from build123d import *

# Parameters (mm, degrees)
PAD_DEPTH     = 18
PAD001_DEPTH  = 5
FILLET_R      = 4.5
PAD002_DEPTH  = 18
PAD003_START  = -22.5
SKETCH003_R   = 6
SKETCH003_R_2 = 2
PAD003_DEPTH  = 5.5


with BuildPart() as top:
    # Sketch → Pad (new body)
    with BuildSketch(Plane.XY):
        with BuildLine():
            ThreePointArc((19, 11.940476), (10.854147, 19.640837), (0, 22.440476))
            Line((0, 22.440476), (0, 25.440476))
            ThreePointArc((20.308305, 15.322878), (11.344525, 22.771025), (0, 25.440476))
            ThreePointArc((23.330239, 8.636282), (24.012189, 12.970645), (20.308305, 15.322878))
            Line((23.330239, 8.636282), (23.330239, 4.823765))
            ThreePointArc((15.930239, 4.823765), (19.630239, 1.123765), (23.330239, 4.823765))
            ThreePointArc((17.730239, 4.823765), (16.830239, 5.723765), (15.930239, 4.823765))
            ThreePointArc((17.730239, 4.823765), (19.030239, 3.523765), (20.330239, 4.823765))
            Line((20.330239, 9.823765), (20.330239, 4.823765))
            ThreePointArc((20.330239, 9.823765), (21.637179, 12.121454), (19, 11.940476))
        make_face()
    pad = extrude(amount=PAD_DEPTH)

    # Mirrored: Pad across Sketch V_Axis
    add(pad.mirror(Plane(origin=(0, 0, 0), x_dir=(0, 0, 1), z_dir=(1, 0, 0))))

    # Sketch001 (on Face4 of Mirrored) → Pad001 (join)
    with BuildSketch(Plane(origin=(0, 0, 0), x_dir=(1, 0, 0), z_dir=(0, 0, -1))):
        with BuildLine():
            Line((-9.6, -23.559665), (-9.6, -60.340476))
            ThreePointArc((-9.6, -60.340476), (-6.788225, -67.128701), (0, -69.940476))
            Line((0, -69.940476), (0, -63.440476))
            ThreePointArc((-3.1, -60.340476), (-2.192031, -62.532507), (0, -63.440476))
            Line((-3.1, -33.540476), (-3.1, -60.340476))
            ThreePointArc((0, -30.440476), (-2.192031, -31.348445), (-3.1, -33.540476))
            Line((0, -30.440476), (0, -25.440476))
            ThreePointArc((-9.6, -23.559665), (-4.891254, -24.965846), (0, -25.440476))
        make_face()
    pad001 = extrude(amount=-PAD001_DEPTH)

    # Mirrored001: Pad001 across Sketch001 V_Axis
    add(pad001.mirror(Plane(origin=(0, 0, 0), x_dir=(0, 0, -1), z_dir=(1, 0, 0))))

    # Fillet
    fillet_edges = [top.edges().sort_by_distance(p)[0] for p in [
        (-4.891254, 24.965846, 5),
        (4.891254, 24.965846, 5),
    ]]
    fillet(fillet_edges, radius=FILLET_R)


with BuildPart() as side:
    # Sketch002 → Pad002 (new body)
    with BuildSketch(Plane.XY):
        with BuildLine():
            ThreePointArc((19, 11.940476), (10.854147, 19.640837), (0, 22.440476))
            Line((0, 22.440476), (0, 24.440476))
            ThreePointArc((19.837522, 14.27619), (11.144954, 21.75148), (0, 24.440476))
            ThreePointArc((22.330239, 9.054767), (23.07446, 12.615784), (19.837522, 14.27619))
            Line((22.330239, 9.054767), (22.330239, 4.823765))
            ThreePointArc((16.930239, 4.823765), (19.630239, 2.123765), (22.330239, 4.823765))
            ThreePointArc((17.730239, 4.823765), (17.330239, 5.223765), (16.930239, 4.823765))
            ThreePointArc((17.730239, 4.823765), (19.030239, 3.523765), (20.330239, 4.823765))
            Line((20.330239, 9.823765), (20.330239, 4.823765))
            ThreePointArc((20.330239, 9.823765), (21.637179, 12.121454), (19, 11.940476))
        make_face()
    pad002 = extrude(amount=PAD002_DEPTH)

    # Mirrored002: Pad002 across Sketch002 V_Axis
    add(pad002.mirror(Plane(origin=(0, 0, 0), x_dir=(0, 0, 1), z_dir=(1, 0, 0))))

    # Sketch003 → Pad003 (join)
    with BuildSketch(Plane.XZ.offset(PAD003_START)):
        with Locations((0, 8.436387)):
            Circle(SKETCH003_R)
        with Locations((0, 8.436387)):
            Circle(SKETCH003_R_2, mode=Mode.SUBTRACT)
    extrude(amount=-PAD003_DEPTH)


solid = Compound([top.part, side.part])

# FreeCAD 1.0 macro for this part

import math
import FreeCAD as App
import Part
import Sketcher
from FreeCAD import Vector


def edges_at(feature, points):
    """Names of the edges that pass closest to the given points."""
    edges = feature.Shape.Edges
    near = lambda p: min(range(len(edges)), key=lambda i: edges[i].distToShape(Part.Vertex(*p))[0])
    return sorted({f"Edge{near(p) + 1}" for p in points})

doc = App.newDocument("Part")
body = doc.addObject("PartDesign::Body", "Body")

sketch1 = doc.addObject("Sketcher::SketchObject", "Sketch")
body.addObject(sketch1)
sketch1.AttachmentSupport = (doc.XY_Plane, [""])
sketch1.MapMode = "FlatFace"
sketch1.addGeometry(Part.ArcOfCircle(Part.Circle(Vector(0, 0, 0), Vector(0, 0, 1), 22.4), math.radians(32), math.radians(90)), False)
sketch1.addGeometry(Part.ArcOfCircle(Part.Circle(Vector(20.4, 11.3, 0), Vector(0, 0, 1), 1.5), math.radians(-91), math.radians(156)), False)
sketch1.addGeometry(Part.LineSegment(Vector(20.3, 9.8, 0), Vector(20.3, 4.8, 0)), False)
sketch1.addGeometry(Part.ArcOfCircle(Part.Circle(Vector(19, 4.8, 0), Vector(0, 0, 1), 1.3), math.radians(180), math.radians(360)), False)
sketch1.addGeometry(Part.ArcOfCircle(Part.Circle(Vector(16.8, 4.8, 0), Vector(0, 0, 1), 0.9), math.radians(0), math.radians(180)), False)
sketch1.addGeometry(Part.ArcOfCircle(Part.Circle(Vector(19.6, 4.8, 0), Vector(0, 0, 1), 3.7), math.radians(180), math.radians(360)), False)
sketch1.addGeometry(Part.LineSegment(Vector(23.3, 4.8, 0), Vector(23.3, 8.6, 0)), False)
sketch1.addGeometry(Part.ArcOfCircle(Part.Circle(Vector(20.4, 11.3, 0), Vector(0, 0, 1), 4), math.radians(-42), math.radians(91)), False)
sketch1.addGeometry(Part.ArcOfCircle(Part.Circle(Vector(0, 0, 0), Vector(0, 0, 1), 25.4), math.radians(37), math.radians(90)), False)
sketch1.addGeometry(Part.LineSegment(Vector(0, 25.4, 0), Vector(0, 22.4, 0)), False)
sketch1.addConstraint(Sketcher.Constraint("Coincident", 0, 1, 1, 2))
sketch1.addConstraint(Sketcher.Constraint("Coincident", 1, 1, 2, 1))
sketch1.addConstraint(Sketcher.Constraint("Tangent", 2, 2, 3, 2))
sketch1.addConstraint(Sketcher.Constraint("Tangent", 3, 1, 4, 1))
sketch1.addConstraint(Sketcher.Constraint("Tangent", 4, 2, 5, 1))
sketch1.addConstraint(Sketcher.Constraint("Tangent", 5, 2, 6, 1))
sketch1.addConstraint(Sketcher.Constraint("Coincident", 6, 2, 7, 1))
sketch1.addConstraint(Sketcher.Constraint("Coincident", 7, 2, 8, 1))
sketch1.addConstraint(Sketcher.Constraint("Coincident", 8, 2, 9, 1))
sketch1.addConstraint(Sketcher.Constraint("Coincident", 9, 2, 0, 2))
sketch1.addConstraint(Sketcher.Constraint("Vertical", 2))
sketch1.addConstraint(Sketcher.Constraint("Vertical", 6))
sketch1.addConstraint(Sketcher.Constraint("Vertical", 9))
sketch1.addConstraint(Sketcher.Constraint("Coincident", 0, 3, -1, 1))
sketch1.addConstraint(Sketcher.Constraint("Coincident", 8, 3, -1, 1))
sketch1.addConstraint(Sketcher.Constraint("Coincident", 7, 3, 1, 3))
sketch1.addConstraint(Sketcher.Constraint("PointOnObject", 8, 2, -2))
sketch1.addConstraint(Sketcher.Constraint("Horizontal", 3, 3, 4, 3))
sketch1.addConstraint(Sketcher.Constraint("Horizontal", 4, 3, 5, 3))
sketch1.addConstraint(Sketcher.Constraint("Radius", 7, 4.000001))
sketch1.addConstraint(Sketcher.Constraint("Radius", 1, 1.5))
sketch1.addConstraint(Sketcher.Constraint("Radius", 3, 1.3))
sketch1.addConstraint(Sketcher.Constraint("Radius", 4, 0.9))
sketch1.addConstraint(Sketcher.Constraint("Radius", 5, 3.7))
sketch1.addConstraint(Sketcher.Constraint("DistanceY", 2, 2, 2, 1, 5.0))
sketch1.addConstraint(Sketcher.Constraint("DistanceY", 9, 2, 9, 1, 3.0))
sketch1.addConstraint(Sketcher.Constraint("DistanceX", -1, 1, 0, 1, 19.0))
sketch1.addConstraint(Sketcher.Constraint("DistanceY", 0, 1, 8, 2, 13.5))
sketch1.addConstraint(Sketcher.Constraint("DistanceY", 0, 1, 7, 2, 3.382402))
sketch1.addConstraint(Sketcher.Constraint("DistanceY", 6, 1, 6, 2, 3.812517))
pad1 = doc.addObject("PartDesign::Pad", "Pad")
body.addObject(pad1)
pad1.Profile = sketch1
pad1.Length = 18
doc.recompute()

mirrored = doc.addObject("PartDesign::Mirrored", "Mirrored")
body.addObject(mirrored)
mirrored.Originals = [pad1]
mirrored.MirrorPlane = (doc.YZ_Plane, [""])
body.Tip = mirrored

sketch2 = doc.addObject("Sketcher::SketchObject", "Sketch001")
body.addObject(sketch2)
sketch2.AttachmentSupport = (doc.XY_Plane, [""])
sketch2.MapMode = "FlatFace"
sketch2.addGeometry(Part.LineSegment(Vector(-9.6, 23.6, 0), Vector(-9.6, 60.3, 0)), False)
sketch2.addGeometry(Part.ArcOfCircle(Part.Circle(Vector(0, 60.3, 0), Vector(0, 0, 1), 9.6), math.radians(90), math.radians(180)), False)
sketch2.addGeometry(Part.LineSegment(Vector(0, 69.9, 0), Vector(0, 63.4, 0)), False)
sketch2.addGeometry(Part.ArcOfCircle(Part.Circle(Vector(0, 60.3, 0), Vector(0, 0, 1), 3.1), math.radians(90), math.radians(180)), False)
sketch2.addGeometry(Part.LineSegment(Vector(-3.1, 60.3, 0), Vector(-3.1, 33.5, 0)), False)
sketch2.addGeometry(Part.ArcOfCircle(Part.Circle(Vector(0, 33.5, 0), Vector(0, 0, 1), 3.1), math.radians(-180), math.radians(-90)), False)
sketch2.addGeometry(Part.LineSegment(Vector(0, 30.4, 0), Vector(0, 25.4, 0)), False)
sketch2.addGeometry(Part.ArcOfCircle(Part.Circle(Vector(0, 0, 0), Vector(0, 0, 1), 25.4), math.radians(90), math.radians(112)), False)
sketch2.addConstraint(Sketcher.Constraint("Tangent", 0, 2, 1, 2))
sketch2.addConstraint(Sketcher.Constraint("Coincident", 1, 1, 2, 1))
sketch2.addConstraint(Sketcher.Constraint("Coincident", 2, 2, 3, 1))
sketch2.addConstraint(Sketcher.Constraint("Tangent", 3, 2, 4, 1))
sketch2.addConstraint(Sketcher.Constraint("Tangent", 4, 2, 5, 1))
sketch2.addConstraint(Sketcher.Constraint("Coincident", 5, 2, 6, 1))
sketch2.addConstraint(Sketcher.Constraint("Coincident", 6, 2, 7, 1))
sketch2.addConstraint(Sketcher.Constraint("Coincident", 7, 2, 0, 1))
sketch2.addConstraint(Sketcher.Constraint("Vertical", 0))
sketch2.addConstraint(Sketcher.Constraint("Vertical", 2))
sketch2.addConstraint(Sketcher.Constraint("Vertical", 4))
sketch2.addConstraint(Sketcher.Constraint("Vertical", 6))
sketch2.addConstraint(Sketcher.Constraint("Coincident", 3, 3, 1, 3))
sketch2.addConstraint(Sketcher.Constraint("Equal", 3, 5))
sketch2.addConstraint(Sketcher.Constraint("PointOnObject", 1, 3, -2))
sketch2.addConstraint(Sketcher.Constraint("PointOnObject", 1, 1, -2))
sketch2.addConstraint(Sketcher.Constraint("PointOnObject", 5, 2, -2))
sketch2.addConstraint(Sketcher.Constraint("Radius", 1, 9.6))
sketch2.addConstraint(Sketcher.Constraint("Radius", 3, 3.1))
sketch2.addConstraint(Sketcher.Constraint("DistanceY", 6, 2, 6, 1, 5.0))
sketch2.addConstraint(Sketcher.Constraint("DistanceY", 4, 2, 4, 1, 26.8))
sketch2.addConstraint(Sketcher.Constraint("Radius", 7, 25.44046))
sketch2.addConstraint(Sketcher.Constraint("DistanceY", 0, 1, 0, 2, 36.780811))
sketch2.addConstraint(Sketcher.Constraint("DistanceY", -1, 1, 1, 3, 60.340476))
pad2 = doc.addObject("PartDesign::Pad", "Pad001")
body.addObject(pad2)
pad2.Profile = sketch2
pad2.Length = 5
doc.recompute()

mirrored2 = doc.addObject("PartDesign::Mirrored", "Mirrored001")
body.addObject(mirrored2)
mirrored2.Originals = [pad2]
mirrored2.MirrorPlane = (doc.YZ_Plane, [""])
body.Tip = mirrored2
doc.recompute()

fillet = doc.addObject("PartDesign::Fillet", "Fillet")
body.addObject(fillet)
fillet.Base = (mirrored2, edges_at(mirrored2, [(-4.891, 24.966, 5), (4.891, 24.966, 5)]))
fillet.Radius = 4.5
body2 = doc.addObject("PartDesign::Body", "Body001")

sketch3 = doc.addObject("Sketcher::SketchObject", "Sketch002")
body2.addObject(sketch3)
sketch3.AttachmentSupport = (doc.getObject("XY_Plane001"), [""])
sketch3.MapMode = "FlatFace"
sketch3.addGeometry(Part.ArcOfCircle(Part.Circle(Vector(0, 0, 0), Vector(0, 0, 1), 22.44), math.radians(32), math.radians(90)), False)
sketch3.addGeometry(Part.ArcOfCircle(Part.Circle(Vector(20.37, 11.32, 0), Vector(0, 0, 1), 1.5), math.radians(-91), math.radians(156)), False)
sketch3.addGeometry(Part.LineSegment(Vector(20.33, 9.82, 0), Vector(20.33, 4.82, 0)), False)
sketch3.addGeometry(Part.ArcOfCircle(Part.Circle(Vector(19.03, 4.82, 0), Vector(0, 0, 1), 1.3), math.radians(180), math.radians(360)), False)
sketch3.addGeometry(Part.ArcOfCircle(Part.Circle(Vector(17.33, 4.82, 0), Vector(0, 0, 1), 0.4), math.radians(0), math.radians(180)), False)
sketch3.addGeometry(Part.ArcOfCircle(Part.Circle(Vector(19.63, 4.82, 0), Vector(0, 0, 1), 2.7), math.radians(180), math.radians(360)), False)
sketch3.addGeometry(Part.LineSegment(Vector(22.33, 4.82, 0), Vector(22.33, 9.05, 0)), False)
sketch3.addGeometry(Part.ArcOfCircle(Part.Circle(Vector(20.37, 11.32, 0), Vector(0, 0, 1), 3), math.radians(-49), math.radians(100)), False)
sketch3.addGeometry(Part.ArcOfCircle(Part.Circle(Vector(0, 0, 0), Vector(0, 0, 1), 24.44), math.radians(36), math.radians(90)), False)
sketch3.addGeometry(Part.LineSegment(Vector(0, 24.44, 0), Vector(0, 22.44, 0)), False)
sketch3.addConstraint(Sketcher.Constraint("Coincident", 0, 1, 1, 2))
sketch3.addConstraint(Sketcher.Constraint("Coincident", 1, 1, 2, 1))
sketch3.addConstraint(Sketcher.Constraint("Tangent", 2, 2, 3, 2))
sketch3.addConstraint(Sketcher.Constraint("Tangent", 3, 1, 4, 1))
sketch3.addConstraint(Sketcher.Constraint("Tangent", 4, 2, 5, 1))
sketch3.addConstraint(Sketcher.Constraint("Tangent", 5, 2, 6, 1))
sketch3.addConstraint(Sketcher.Constraint("Coincident", 6, 2, 7, 1))
sketch3.addConstraint(Sketcher.Constraint("Coincident", 7, 2, 8, 1))
sketch3.addConstraint(Sketcher.Constraint("Coincident", 8, 2, 9, 1))
sketch3.addConstraint(Sketcher.Constraint("Coincident", 9, 2, 0, 2))
sketch3.addConstraint(Sketcher.Constraint("Vertical", 2))
sketch3.addConstraint(Sketcher.Constraint("Vertical", 6))
sketch3.addConstraint(Sketcher.Constraint("Vertical", 9))
sketch3.addConstraint(Sketcher.Constraint("Coincident", 0, 3, -1, 1))
sketch3.addConstraint(Sketcher.Constraint("Coincident", 8, 3, -1, 1))
sketch3.addConstraint(Sketcher.Constraint("Coincident", 7, 3, 1, 3))
sketch3.addConstraint(Sketcher.Constraint("PointOnObject", 8, 2, -2))
sketch3.addConstraint(Sketcher.Constraint("Horizontal", 3, 3, 4, 3))
sketch3.addConstraint(Sketcher.Constraint("Horizontal", 4, 3, 5, 3))
sketch3.addConstraint(Sketcher.Constraint("Radius", 7, 3.0))
sketch3.addConstraint(Sketcher.Constraint("Radius", 1, 1.5))
sketch3.addConstraint(Sketcher.Constraint("Radius", 3, 1.3))
sketch3.addConstraint(Sketcher.Constraint("Radius", 4, 0.4))
sketch3.addConstraint(Sketcher.Constraint("Radius", 5, 2.7))
sketch3.addConstraint(Sketcher.Constraint("DistanceY", 2, 2, 2, 1, 5.0))
sketch3.addConstraint(Sketcher.Constraint("DistanceY", 9, 2, 9, 1, 2.0))
sketch3.addConstraint(Sketcher.Constraint("DistanceX", -1, 1, 0, 1, 19.0))
sketch3.addConstraint(Sketcher.Constraint("DistanceY", 0, 1, 8, 2, 12.5))
sketch3.addConstraint(Sketcher.Constraint("DistanceY", 6, 2, 1, 1, 0.768998))
sketch3.addConstraint(Sketcher.Constraint("DistanceY", -1, 1, 1, 3, 11.323311))
pad3 = doc.addObject("PartDesign::Pad", "Pad002")
body2.addObject(pad3)
pad3.Profile = sketch3
pad3.Length = 18
doc.recompute()

mirrored3 = doc.addObject("PartDesign::Mirrored", "Mirrored002")
body2.addObject(mirrored3)
mirrored3.Originals = [pad3]
mirrored3.MirrorPlane = (doc.getObject("YZ_Plane001"), [""])
body2.Tip = mirrored3

sketch4 = doc.addObject("Sketcher::SketchObject", "Sketch003")
body2.addObject(sketch4)
sketch4.AttachmentSupport = (doc.getObject("XZ_Plane001"), [""])
sketch4.MapMode = "FlatFace"
sketch4.AttachmentOffset = App.Placement(Vector(0, 0, -22.5), App.Rotation())
sketch4.addGeometry(Part.Circle(Vector(0, 8.4, 0), Vector(0, 0, 1), 6), False)
sketch4.addGeometry(Part.Circle(Vector(0, 8.4, 0), Vector(0, 0, 1), 2), False)
sketch4.addConstraint(Sketcher.Constraint("Coincident", 1, 3, 0, 3))
sketch4.addConstraint(Sketcher.Constraint("PointOnObject", 0, 3, -2))
sketch4.addConstraint(Sketcher.Constraint("Diameter", 0, 12.0))
sketch4.addConstraint(Sketcher.Constraint("Diameter", 1, 4.0))
sketch4.addConstraint(Sketcher.Constraint("DistanceY", -1, 1, 0, 3, 8.436387))
pad4 = doc.addObject("PartDesign::Pad", "Pad003")
body2.addObject(pad4)
pad4.Profile = sketch4
pad4.Length = 5.5
pad4.Reversed = True

doc.recompute()
